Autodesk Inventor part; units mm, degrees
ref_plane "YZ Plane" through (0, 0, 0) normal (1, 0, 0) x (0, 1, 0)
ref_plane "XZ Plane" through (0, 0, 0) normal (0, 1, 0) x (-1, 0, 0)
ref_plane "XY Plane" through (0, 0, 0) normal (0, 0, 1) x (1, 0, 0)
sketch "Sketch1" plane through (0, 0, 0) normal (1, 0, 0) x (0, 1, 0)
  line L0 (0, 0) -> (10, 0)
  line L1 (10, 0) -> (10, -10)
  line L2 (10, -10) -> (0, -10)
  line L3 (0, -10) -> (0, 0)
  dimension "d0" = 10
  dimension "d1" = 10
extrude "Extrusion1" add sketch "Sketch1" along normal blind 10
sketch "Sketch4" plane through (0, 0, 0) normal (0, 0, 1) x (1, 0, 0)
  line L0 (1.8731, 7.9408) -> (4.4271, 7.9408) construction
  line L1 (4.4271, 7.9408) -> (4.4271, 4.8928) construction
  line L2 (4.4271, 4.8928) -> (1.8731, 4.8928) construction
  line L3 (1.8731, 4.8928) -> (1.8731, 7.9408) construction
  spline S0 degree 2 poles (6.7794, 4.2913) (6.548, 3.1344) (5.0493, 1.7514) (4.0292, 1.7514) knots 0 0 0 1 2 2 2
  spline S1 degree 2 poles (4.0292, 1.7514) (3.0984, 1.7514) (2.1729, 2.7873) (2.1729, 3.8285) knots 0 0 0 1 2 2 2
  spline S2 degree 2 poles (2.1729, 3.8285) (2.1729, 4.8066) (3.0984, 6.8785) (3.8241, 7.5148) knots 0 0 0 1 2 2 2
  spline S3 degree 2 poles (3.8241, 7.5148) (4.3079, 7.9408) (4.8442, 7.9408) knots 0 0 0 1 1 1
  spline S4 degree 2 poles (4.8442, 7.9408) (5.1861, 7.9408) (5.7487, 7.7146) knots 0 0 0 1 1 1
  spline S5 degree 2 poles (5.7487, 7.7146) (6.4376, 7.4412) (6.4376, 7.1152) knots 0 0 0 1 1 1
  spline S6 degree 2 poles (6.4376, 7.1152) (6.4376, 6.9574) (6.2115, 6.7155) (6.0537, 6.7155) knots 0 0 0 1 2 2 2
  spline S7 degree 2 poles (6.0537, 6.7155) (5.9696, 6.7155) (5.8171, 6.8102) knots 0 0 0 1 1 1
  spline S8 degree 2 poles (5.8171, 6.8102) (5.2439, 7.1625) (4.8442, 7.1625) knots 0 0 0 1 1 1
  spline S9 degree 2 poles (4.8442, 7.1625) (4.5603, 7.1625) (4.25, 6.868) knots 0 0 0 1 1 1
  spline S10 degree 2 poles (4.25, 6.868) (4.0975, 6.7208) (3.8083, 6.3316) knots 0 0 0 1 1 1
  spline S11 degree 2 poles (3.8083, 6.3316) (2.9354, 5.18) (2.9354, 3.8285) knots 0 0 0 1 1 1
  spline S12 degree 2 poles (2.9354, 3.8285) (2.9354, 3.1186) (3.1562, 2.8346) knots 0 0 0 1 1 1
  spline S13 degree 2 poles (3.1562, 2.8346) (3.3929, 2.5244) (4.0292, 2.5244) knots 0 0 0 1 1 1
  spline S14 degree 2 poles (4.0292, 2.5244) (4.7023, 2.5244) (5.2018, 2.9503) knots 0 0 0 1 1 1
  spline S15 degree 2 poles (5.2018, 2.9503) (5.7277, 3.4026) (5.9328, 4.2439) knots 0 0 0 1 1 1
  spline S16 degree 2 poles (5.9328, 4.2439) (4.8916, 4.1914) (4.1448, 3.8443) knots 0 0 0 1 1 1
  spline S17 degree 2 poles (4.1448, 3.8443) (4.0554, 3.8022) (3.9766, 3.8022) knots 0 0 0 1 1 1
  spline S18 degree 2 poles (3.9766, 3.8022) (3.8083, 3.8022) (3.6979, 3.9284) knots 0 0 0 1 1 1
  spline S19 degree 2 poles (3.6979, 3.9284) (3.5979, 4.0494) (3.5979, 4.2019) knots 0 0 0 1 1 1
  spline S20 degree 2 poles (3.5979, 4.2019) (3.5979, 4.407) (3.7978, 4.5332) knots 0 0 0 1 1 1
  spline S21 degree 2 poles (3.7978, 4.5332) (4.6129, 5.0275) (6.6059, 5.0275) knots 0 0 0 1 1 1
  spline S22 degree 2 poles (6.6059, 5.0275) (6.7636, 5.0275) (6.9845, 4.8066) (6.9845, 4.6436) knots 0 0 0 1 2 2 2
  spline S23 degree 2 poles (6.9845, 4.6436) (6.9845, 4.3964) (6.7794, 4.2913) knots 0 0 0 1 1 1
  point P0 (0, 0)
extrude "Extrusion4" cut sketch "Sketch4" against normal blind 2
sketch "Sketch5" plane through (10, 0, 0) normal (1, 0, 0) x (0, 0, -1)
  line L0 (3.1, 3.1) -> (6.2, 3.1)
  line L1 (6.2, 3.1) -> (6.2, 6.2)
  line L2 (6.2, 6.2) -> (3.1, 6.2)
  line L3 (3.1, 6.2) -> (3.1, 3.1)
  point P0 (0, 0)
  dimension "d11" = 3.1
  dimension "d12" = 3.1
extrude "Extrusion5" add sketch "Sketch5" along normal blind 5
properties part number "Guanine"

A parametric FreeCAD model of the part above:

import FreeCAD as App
import Part
import Sketcher
from FreeCAD import Vector
Q = App.Units.Quantity

doc = App.newDocument("Part")
body = doc.addObject("PartDesign::Body", "Body")

# Sketch on YZ plane
sketch1 = body.newObject("Sketcher::SketchObject", "Sketch")
sketch1.AttachmentSupport = (doc.getObject("YZ_Plane"), [""])
sketch1.MapMode = "FlatFace"
sketch1.addGeometry([
    Part.LineSegment(Vector(10, 0, 0), Vector(0, 0, 0)),
    Part.LineSegment(Vector(0, 0, 0), Vector(0, -10, 0)),
    Part.LineSegment(Vector(0, -10, 0), Vector(10, -10, 0)),
    Part.LineSegment(Vector(10, -10, 0), Vector(10, 0, 0)),
], False)
sketch1.addConstraint([
    Sketcher.Constraint("Coincident", 0, 2, 1, 1),
    Sketcher.Constraint("Coincident", 1, 2, 2, 1),
    Sketcher.Constraint("Coincident", 2, 2, 3, 1),
    Sketcher.Constraint("Coincident", 3, 2, 0, 1),
    Sketcher.Constraint("Horizontal", 0),
    Sketcher.Constraint("Vertical", 1),
    Sketcher.Constraint("Horizontal", 2),
    Sketcher.Constraint("Vertical", 3),
    Sketcher.Constraint("Coincident", 0, 2, -1, 1),
    Sketcher.Constraint("Equal", 2, 1),
    Sketcher.Constraint("DistanceX", 0, 2, 0, 1, Q("10 mm")),
])
pad1 = body.newObject("PartDesign::Pad", "Pad")
pad1.Profile = sketch1
pad1.Length = 10

# Sketch on XY plane
sketch2 = body.newObject("Sketcher::SketchObject", "Sketch001")
sketch2.AttachmentSupport = (doc.getObject("XY_Plane"), [""])
sketch2.MapMode = "FlatFace"
sketch2.addGeometry([
    Part.BSplineCurve([Vector(6.7794, 4.2913, 0), Vector(6.548, 3.1344, 0), Vector(5.0493, 1.7514, 0), Vector(4.0292, 1.7514, 0)], [3, 1, 3], [0, 1, 2], False, 2, [1, 1, 1, 1], False),  # 0
    Part.BSplineCurve([Vector(6.9845, 4.6436, 0), Vector(6.9845, 4.3964, 0), Vector(6.7794, 4.2913, 0)], [3, 3], [0, 1], False, 2, [1, 1, 1], False),  # 1
    Part.BSplineCurve([Vector(6.6059, 5.0275, 0), Vector(6.7636, 5.0275, 0), Vector(6.9845, 4.8066, 0), Vector(6.9845, 4.6436, 0)], [3, 1, 3], [0, 1, 2], False, 2, [1, 1, 1, 1], False),  # 2
    Part.BSplineCurve([Vector(3.7978, 4.5332, 0), Vector(4.6129, 5.0275, 0), Vector(6.6059, 5.0275, 0)], [3, 3], [0, 1], False, 2, [1, 1, 1], False),  # 3
    Part.BSplineCurve([Vector(3.5979, 4.2019, 0), Vector(3.5979, 4.407, 0), Vector(3.7978, 4.5332, 0)], [3, 3], [0, 1], False, 2, [1, 1, 1], False),  # 4
    Part.BSplineCurve([Vector(3.6979, 3.9284, 0), Vector(3.5979, 4.0494, 0), Vector(3.5979, 4.2019, 0)], [3, 3], [0, 1], False, 2, [1, 1, 1], False),  # 5
    Part.BSplineCurve([Vector(3.9766, 3.8022, 0), Vector(3.8083, 3.8022, 0), Vector(3.6979, 3.9284, 0)], [3, 3], [0, 1], False, 2, [1, 1, 1], False),  # 6
    Part.BSplineCurve([Vector(4.1448, 3.8443, 0), Vector(4.0554, 3.8022, 0), Vector(3.9766, 3.8022, 0)], [3, 3], [0, 1], False, 2, [1, 1, 1], False),  # 7
    Part.BSplineCurve([Vector(5.9328, 4.2439, 0), Vector(4.8916, 4.1914, 0), Vector(4.1448, 3.8443, 0)], [3, 3], [0, 1], False, 2, [1, 1, 1], False),  # 8
    Part.BSplineCurve([Vector(5.2018, 2.9503, 0), Vector(5.7277, 3.4026, 0), Vector(5.9328, 4.2439, 0)], [3, 3], [0, 1], False, 2, [1, 1, 1], False),  # 9
    Part.BSplineCurve([Vector(4.0292, 2.5244, 0), Vector(4.7023, 2.5244, 0), Vector(5.2018, 2.9503, 0)], [3, 3], [0, 1], False, 2, [1, 1, 1], False),  # 10
    Part.BSplineCurve([Vector(3.1562, 2.8346, 0), Vector(3.3929, 2.5244, 0), Vector(4.0292, 2.5244, 0)], [3, 3], [0, 1], False, 2, [1, 1, 1], False),  # 11
    Part.BSplineCurve([Vector(2.9354, 3.8285, 0), Vector(2.9354, 3.1186, 0), Vector(3.1562, 2.8346, 0)], [3, 3], [0, 1], False, 2, [1, 1, 1], False),  # 12
    Part.BSplineCurve([Vector(3.8083, 6.3316, 0), Vector(2.9354, 5.18, 0), Vector(2.9354, 3.8285, 0)], [3, 3], [0, 1], False, 2, [1, 1, 1], False),  # 13
    Part.BSplineCurve([Vector(4.25, 6.868, 0), Vector(4.0975, 6.7208, 0), Vector(3.8083, 6.3316, 0)], [3, 3], [0, 1], False, 2, [1, 1, 1], False),  # 14
    Part.BSplineCurve([Vector(4.8442, 7.1625, 0), Vector(4.5603, 7.1625, 0), Vector(4.25, 6.868, 0)], [3, 3], [0, 1], False, 2, [1, 1, 1], False),  # 15
    Part.BSplineCurve([Vector(5.8171, 6.8102, 0), Vector(5.2439, 7.1625, 0), Vector(4.8442, 7.1625, 0)], [3, 3], [0, 1], False, 2, [1, 1, 1], False),  # 16
    Part.BSplineCurve([Vector(6.0537, 6.7155, 0), Vector(5.9696, 6.7155, 0), Vector(5.8171, 6.8102, 0)], [3, 3], [0, 1], False, 2, [1, 1, 1], False),  # 17
    Part.BSplineCurve([Vector(6.4376, 7.1152, 0), Vector(6.4376, 6.9574, 0), Vector(6.2115, 6.7155, 0), Vector(6.0537, 6.7155, 0)], [3, 1, 3], [0, 1, 2], False, 2, [1, 1, 1, 1], False),  # 18
    Part.BSplineCurve([Vector(5.7487, 7.7146, 0), Vector(6.4376, 7.4412, 0), Vector(6.4376, 7.1152, 0)], [3, 3], [0, 1], False, 2, [1, 1, 1], False),  # 19
    Part.BSplineCurve([Vector(4.8442, 7.9408, 0), Vector(5.1861, 7.9408, 0), Vector(5.7487, 7.7146, 0)], [3, 3], [0, 1], False, 2, [1, 1, 1], False),  # 20
    Part.BSplineCurve([Vector(3.8241, 7.5148, 0), Vector(4.3079, 7.9408, 0), Vector(4.8442, 7.9408, 0)], [3, 3], [0, 1], False, 2, [1, 1, 1], False),  # 21
    Part.BSplineCurve([Vector(2.1729, 3.8285, 0), Vector(2.1729, 4.8066, 0), Vector(3.0984, 6.8785, 0), Vector(3.8241, 7.5148, 0)], [3, 1, 3], [0, 1, 2], False, 2, [1, 1, 1, 1], False),  # 22
    Part.BSplineCurve([Vector(4.0292, 1.7514, 0), Vector(3.0984, 1.7514, 0), Vector(2.1729, 2.7873, 0), Vector(2.1729, 3.8285, 0)], [3, 1, 3], [0, 1, 2], False, 2, [1, 1, 1, 1], False),  # 23
], False)
sketch2.addConstraint([
    Sketcher.Constraint("Block", 0),
    Sketcher.Constraint("Block", 1),
    Sketcher.Constraint("Block", 2),
    Sketcher.Constraint("Block", 3),
    Sketcher.Constraint("Block", 4),
    Sketcher.Constraint("Block", 5),
    Sketcher.Constraint("Block", 6),
    Sketcher.Constraint("Block", 7),
    Sketcher.Constraint("Block", 8),
    Sketcher.Constraint("Block", 9),
    Sketcher.Constraint("Block", 10),
    Sketcher.Constraint("Block", 11),
    Sketcher.Constraint("Block", 12),
    Sketcher.Constraint("Block", 13),
    Sketcher.Constraint("Block", 14),
    Sketcher.Constraint("Block", 15),
    Sketcher.Constraint("Block", 16),
    Sketcher.Constraint("Block", 17),
    Sketcher.Constraint("Block", 18),
    Sketcher.Constraint("Block", 19),
    Sketcher.Constraint("Block", 20),
    Sketcher.Constraint("Block", 21),
    Sketcher.Constraint("Block", 22),
    Sketcher.Constraint("Block", 23),
])
pocket1 = body.newObject("PartDesign::Pocket", "Pocket")
pocket1.Profile = sketch2
pocket1.Length = 2

# Sketch on YZ plane
sketch3 = body.newObject("Sketcher::SketchObject", "Sketch002")
sketch3.AttachmentSupport = (doc.getObject("YZ_Plane"), [""])
sketch3.MapMode = "FlatFace"
sketch3.AttachmentOffset = App.Placement(Vector(0, 0, 10), App.Rotation())
sketch3.addGeometry([
    Part.LineSegment(Vector(6.2, -3.1, 0), Vector(3.1, -3.1, 0)),
    Part.LineSegment(Vector(3.1, -3.1, 0), Vector(3.1, -6.2, 0)),
    Part.LineSegment(Vector(3.1, -6.2, 0), Vector(6.2, -6.2, 0)),
    Part.LineSegment(Vector(6.2, -6.2, 0), Vector(6.2, -3.1, 0)),
], False)
sketch3.addConstraint([
    Sketcher.Constraint("Coincident", 0, 2, 1, 1),
    Sketcher.Constraint("Coincident", 1, 2, 2, 1),
    Sketcher.Constraint("Coincident", 2, 2, 3, 1),
    Sketcher.Constraint("Coincident", 3, 2, 0, 1),
    Sketcher.Constraint("Horizontal", 0),
    Sketcher.Constraint("Vertical", 1),
    Sketcher.Constraint("Horizontal", 2),
    Sketcher.Constraint("Vertical", 3),
    Sketcher.Constraint("Equal", 2, 1),
    Sketcher.Constraint("DistanceX", 0, 2, 0, 1, Q("3.1 mm")),
    Sketcher.Constraint("DistanceX", -1, 1, 0, 2, Q("3.1 mm")),
    Sketcher.Constraint("DistanceY", 0, 2, -1, 1, Q("3.1 mm")),
])
pad2 = body.newObject("PartDesign::Pad", "Pad001")
pad2.Profile = sketch3
pad2.Length = 5

doc.recompute()
